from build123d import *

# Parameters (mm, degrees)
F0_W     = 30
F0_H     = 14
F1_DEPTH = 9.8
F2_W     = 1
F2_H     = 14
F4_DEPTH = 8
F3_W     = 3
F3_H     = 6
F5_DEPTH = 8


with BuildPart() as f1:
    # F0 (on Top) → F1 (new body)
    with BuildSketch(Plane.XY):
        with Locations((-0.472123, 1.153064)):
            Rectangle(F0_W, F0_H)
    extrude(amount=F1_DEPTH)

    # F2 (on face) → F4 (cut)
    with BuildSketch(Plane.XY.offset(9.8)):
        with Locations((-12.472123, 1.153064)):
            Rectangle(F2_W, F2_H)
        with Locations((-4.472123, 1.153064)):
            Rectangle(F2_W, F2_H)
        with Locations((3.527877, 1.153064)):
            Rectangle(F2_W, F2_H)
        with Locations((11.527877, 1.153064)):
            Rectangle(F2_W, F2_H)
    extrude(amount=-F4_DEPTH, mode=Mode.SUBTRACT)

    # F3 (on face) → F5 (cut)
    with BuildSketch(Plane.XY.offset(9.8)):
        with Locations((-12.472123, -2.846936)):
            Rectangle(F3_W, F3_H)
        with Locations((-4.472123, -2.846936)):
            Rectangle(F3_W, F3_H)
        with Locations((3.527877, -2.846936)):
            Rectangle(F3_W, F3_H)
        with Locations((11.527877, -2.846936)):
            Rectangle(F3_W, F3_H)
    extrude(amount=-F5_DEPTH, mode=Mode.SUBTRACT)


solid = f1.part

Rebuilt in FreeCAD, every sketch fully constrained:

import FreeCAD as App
import Part
import Sketcher

V = App.Vector

doc = App.newDocument("Part")
body = doc.addObject("PartDesign::Body", "Body")

# Sketch on XY plane
sketch1 = body.newObject("Sketcher::SketchObject", "Sketch")
sketch1.AttachmentSupport = (doc.getObject("XY_Plane"), [""])
sketch1.MapMode = "FlatFace"
sketch1.addGeometry([
    Part.LineSegment(V(-15.472123, 8.153064, 0), V(-15.472123, -5.846936, 0)),
    Part.LineSegment(V(-15.472123, -5.846936, 0), V(14.527877, -5.846936, 0)),
    Part.LineSegment(V(14.527877, -5.846936, 0), V(14.527877, 8.153064, 0)),
    Part.LineSegment(V(14.527877, 8.153064, 0), V(-15.472123, 8.153064, 0)),
], False)
sketch1.addConstraint([
    Sketcher.Constraint("Coincident", 0, 2, 1, 1),
    Sketcher.Constraint("Coincident", 1, 2, 2, 1),
    Sketcher.Constraint("Coincident", 2, 2, 3, 1),
    Sketcher.Constraint("Coincident", 3, 2, 0, 1),
    Sketcher.Constraint("Vertical", 0),
    Sketcher.Constraint("Horizontal", 1),
    Sketcher.Constraint("Vertical", 2),
    Sketcher.Constraint("Horizontal", 3),
    Sketcher.Constraint("DistanceX", 1, 1, 1, 2, 30.0),
    Sketcher.Constraint("DistanceY", 0, 2, 0, 1, 14.0),
    Sketcher.Constraint("DistanceX", 0, 2, -1, 1, 15.472123),
    Sketcher.Constraint("DistanceY", 0, 2, -1, 1, 5.846936),
])
pad1 = body.newObject("PartDesign::Pad", "Pad")
pad1.Profile = sketch1
pad1.Length = 9.8

# Sketch on XY plane
sketch2 = body.newObject("Sketcher::SketchObject", "Sketch001")
sketch2.AttachmentSupport = (doc.getObject("XY_Plane"), [""])
sketch2.MapMode = "FlatFace"
sketch2.AttachmentOffset = App.Placement(V(0, 0, 9.8), App.Rotation())
sketch2.addGeometry([
    Part.LineSegment(V(-12.972123, 8.153064, 0), V(-12.972123, -5.846936, 0)),  # 0
    Part.LineSegment(V(-12.972123, -5.846936, 0), V(-11.972123, -5.846936, 0)),  # 1
    Part.LineSegment(V(-11.972123, -5.846936, 0), V(-11.972123, 8.153064, 0)),  # 2
    Part.LineSegment(V(-11.972123, 8.153064, 0), V(-12.972123, 8.153064, 0)),  # 3
    Part.LineSegment(V(-4.972123, 8.153064, 0), V(-4.972123, -5.846936, 0)),  # 4
    Part.LineSegment(V(-4.972123, -5.846936, 0), V(-3.972123, -5.846936, 0)),  # 5
    Part.LineSegment(V(-3.972123, -5.846936, 0), V(-3.972123, 8.153064, 0)),  # 6
    Part.LineSegment(V(-3.972123, 8.153064, 0), V(-4.972123, 8.153064, 0)),  # 7
    Part.LineSegment(V(3.027877, 8.153064, 0), V(3.027877, -5.846936, 0)),  # 8
    Part.LineSegment(V(3.027877, -5.846936, 0), V(4.027877, -5.846936, 0)),  # 9
    Part.LineSegment(V(4.027877, -5.846936, 0), V(4.027877, 8.153064, 0)),  # 10
    Part.LineSegment(V(4.027877, 8.153064, 0), V(3.027877, 8.153064, 0)),  # 11
    Part.LineSegment(V(11.027877, 8.153064, 0), V(11.027877, -5.846936, 0)),  # 12
    Part.LineSegment(V(11.027877, -5.846936, 0), V(12.027877, -5.846936, 0)),  # 13
    Part.LineSegment(V(12.027877, -5.846936, 0), V(12.027877, 8.153064, 0)),  # 14
    Part.LineSegment(V(12.027877, 8.153064, 0), V(11.027877, 8.153064, 0)),  # 15
], False)
sketch2.addConstraint([
    Sketcher.Constraint("Coincident", 0, 2, 1, 1),
    Sketcher.Constraint("Coincident", 1, 2, 2, 1),
    Sketcher.Constraint("Coincident", 2, 2, 3, 1),
    Sketcher.Constraint("Coincident", 3, 2, 0, 1),
    Sketcher.Constraint("Coincident", 4, 2, 5, 1),
    Sketcher.Constraint("Coincident", 5, 2, 6, 1),
    Sketcher.Constraint("Coincident", 6, 2, 7, 1),
    Sketcher.Constraint("Coincident", 7, 2, 4, 1),
    Sketcher.Constraint("Coincident", 8, 2, 9, 1),
    Sketcher.Constraint("Coincident", 9, 2, 10, 1),
    Sketcher.Constraint("Coincident", 10, 2, 11, 1),
    Sketcher.Constraint("Coincident", 11, 2, 8, 1),
    Sketcher.Constraint("Coincident", 12, 2, 13, 1),
    Sketcher.Constraint("Coincident", 13, 2, 14, 1),
    Sketcher.Constraint("Coincident", 14, 2, 15, 1),
    Sketcher.Constraint("Coincident", 15, 2, 12, 1),
    Sketcher.Constraint("Vertical", 0),
    Sketcher.Constraint("Horizontal", 1),
    Sketcher.Constraint("Vertical", 2),
    Sketcher.Constraint("Horizontal", 3),
    Sketcher.Constraint("Vertical", 4),
    Sketcher.Constraint("Horizontal", 5),
    Sketcher.Constraint("Vertical", 6),
    Sketcher.Constraint("Horizontal", 7),
    Sketcher.Constraint("Vertical", 8),
    Sketcher.Constraint("Horizontal", 9),
    Sketcher.Constraint("Vertical", 10),
    Sketcher.Constraint("Horizontal", 11),
    Sketcher.Constraint("Vertical", 12),
    Sketcher.Constraint("Horizontal", 13),
    Sketcher.Constraint("Vertical", 14),
    Sketcher.Constraint("Horizontal", 15),
    Sketcher.Constraint("Horizontal", 1, 2, 4, 2),
    Sketcher.Constraint("Horizontal", 3, 2, 6, 2),
    Sketcher.Constraint("Horizontal", 5, 2, 8, 2),
    Sketcher.Constraint("Horizontal", 7, 2, 10, 2),
    Sketcher.Constraint("Horizontal", 9, 2, 12, 2),
    Sketcher.Constraint("Horizontal", 11, 2, 14, 2),
    Sketcher.Constraint("Equal", 3, 5),
    Sketcher.Constraint("Equal", 7, 9),
    Sketcher.Constraint("Equal", 11, 13),
    Sketcher.Constraint("DistanceX", 1, 1, 1, 2, 1.0),
    Sketcher.Constraint("DistanceY", 0, 2, 0, 1, 14.0),
    Sketcher.Constraint("DistanceX", 1, 2, 4, 2, 7.0),
    Sketcher.Constraint("DistanceX", 5, 2, 8, 2, 7.0),
    Sketcher.Constraint("DistanceX", 9, 2, 12, 2, 7.0),
    Sketcher.Constraint("DistanceX", 0, 2, -1, 1, 12.972123),
    Sketcher.Constraint("DistanceY", 0, 2, -1, 1, 5.846936),
])
pocket1 = body.newObject("PartDesign::Pocket", "Pocket")
pocket1.Profile = sketch2
pocket1.Length = 8

# Sketch on XY plane
sketch3 = body.newObject("Sketcher::SketchObject", "Sketch002")
sketch3.AttachmentSupport = (doc.getObject("XY_Plane"), [""])
sketch3.MapMode = "FlatFace"
sketch3.AttachmentOffset = App.Placement(V(0, 0, 9.8), App.Rotation())
sketch3.addGeometry([
    Part.LineSegment(V(-13.972123, 0.153064, 0), V(-13.972123, -5.846936, 0)),  # 0
    Part.LineSegment(V(-13.972123, -5.846936, 0), V(-10.972123, -5.846936, 0)),  # 1
    Part.LineSegment(V(-10.972123, -5.846936, 0), V(-10.972123, 0.153064, 0)),  # 2
    Part.LineSegment(V(-10.972123, 0.153064, 0), V(-13.972123, 0.153064, 0)),  # 3
    Part.LineSegment(V(-5.972123, 0.153064, 0), V(-5.972123, -5.846936, 0)),  # 4
    Part.LineSegment(V(-5.972123, -5.846936, 0), V(-2.972123, -5.846936, 0)),  # 5
    Part.LineSegment(V(-2.972123, -5.846936, 0), V(-2.972123, 0.153064, 0)),  # 6
    Part.LineSegment(V(-2.972123, 0.153064, 0), V(-5.972123, 0.153064, 0)),  # 7
    Part.LineSegment(V(2.027877, 0.153064, 0), V(2.027877, -5.846936, 0)),  # 8
    Part.LineSegment(V(2.027877, -5.846936, 0), V(5.027877, -5.846936, 0)),  # 9
    Part.LineSegment(V(5.027877, -5.846936, 0), V(5.027877, 0.153064, 0)),  # 10
    Part.LineSegment(V(5.027877, 0.153064, 0), V(2.027877, 0.153064, 0)),  # 11
    Part.LineSegment(V(10.027877, 0.153064, 0), V(10.027877, -5.846936, 0)),  # 12
    Part.LineSegment(V(10.027877, -5.846936, 0), V(13.027877, -5.846936, 0)),  # 13
    Part.LineSegment(V(13.027877, -5.846936, 0), V(13.027877, 0.153064, 0)),  # 14
    Part.LineSegment(V(13.027877, 0.153064, 0), V(10.027877, 0.153064, 0)),  # 15
], False)
sketch3.addConstraint([
    Sketcher.Constraint("Coincident", 0, 2, 1, 1),
    Sketcher.Constraint("Coincident", 1, 2, 2, 1),
    Sketcher.Constraint("Coincident", 2, 2, 3, 1),
    Sketcher.Constraint("Coincident", 3, 2, 0, 1),
    Sketcher.Constraint("Coincident", 4, 2, 5, 1),
    Sketcher.Constraint("Coincident", 5, 2, 6, 1),
    Sketcher.Constraint("Coincident", 6, 2, 7, 1),
    Sketcher.Constraint("Coincident", 7, 2, 4, 1),
    Sketcher.Constraint("Coincident", 8, 2, 9, 1),
    Sketcher.Constraint("Coincident", 9, 2, 10, 1),
    Sketcher.Constraint("Coincident", 10, 2, 11, 1),
    Sketcher.Constraint("Coincident", 11, 2, 8, 1),
    Sketcher.Constraint("Coincident", 12, 2, 13, 1),
    Sketcher.Constraint("Coincident", 13, 2, 14, 1),
    Sketcher.Constraint("Coincident", 14, 2, 15, 1),
    Sketcher.Constraint("Coincident", 15, 2, 12, 1),
    Sketcher.Constraint("Vertical", 0),
    Sketcher.Constraint("Horizontal", 1),
    Sketcher.Constraint("Vertical", 2),
    Sketcher.Constraint("Horizontal", 3),
    Sketcher.Constraint("Vertical", 4),
    Sketcher.Constraint("Horizontal", 5),
    Sketcher.Constraint("Vertical", 6),
    Sketcher.Constraint("Horizontal", 7),
    Sketcher.Constraint("Vertical", 8),
    Sketcher.Constraint("Horizontal", 9),
    Sketcher.Constraint("Vertical", 10),
    Sketcher.Constraint("Horizontal", 11),
    Sketcher.Constraint("Vertical", 12),
    Sketcher.Constraint("Horizontal", 13),
    Sketcher.Constraint("Vertical", 14),
    Sketcher.Constraint("Horizontal", 15),
    Sketcher.Constraint("Horizontal", 1, 2, 4, 2),
    Sketcher.Constraint("Horizontal", 3, 2, 6, 2),
    Sketcher.Constraint("Horizontal", 5, 2, 8, 2),
    Sketcher.Constraint("Horizontal", 7, 2, 10, 2),
    Sketcher.Constraint("Horizontal", 9, 2, 12, 2),
    Sketcher.Constraint("Horizontal", 11, 2, 14, 2),
    Sketcher.Constraint("Equal", 3, 5),
    Sketcher.Constraint("Equal", 7, 9),
    Sketcher.Constraint("Equal", 11, 13),
    Sketcher.Constraint("DistanceX", 1, 1, 1, 2, 3.0),
    Sketcher.Constraint("DistanceY", 0, 2, 0, 1, 6.0),
    Sketcher.Constraint("DistanceX", 1, 2, 4, 2, 5.0),
    Sketcher.Constraint("DistanceX", 5, 2, 8, 2, 5.0),
    Sketcher.Constraint("DistanceX", 9, 2, 12, 2, 5.0),
    Sketcher.Constraint("DistanceX", 0, 2, -1, 1, 13.972123),
    Sketcher.Constraint("DistanceY", 0, 2, -1, 1, 5.846936),
])
pocket2 = body.newObject("PartDesign::Pocket", "Pocket001")
pocket2.Profile = sketch3
pocket2.Length = 8

doc.recompute()
